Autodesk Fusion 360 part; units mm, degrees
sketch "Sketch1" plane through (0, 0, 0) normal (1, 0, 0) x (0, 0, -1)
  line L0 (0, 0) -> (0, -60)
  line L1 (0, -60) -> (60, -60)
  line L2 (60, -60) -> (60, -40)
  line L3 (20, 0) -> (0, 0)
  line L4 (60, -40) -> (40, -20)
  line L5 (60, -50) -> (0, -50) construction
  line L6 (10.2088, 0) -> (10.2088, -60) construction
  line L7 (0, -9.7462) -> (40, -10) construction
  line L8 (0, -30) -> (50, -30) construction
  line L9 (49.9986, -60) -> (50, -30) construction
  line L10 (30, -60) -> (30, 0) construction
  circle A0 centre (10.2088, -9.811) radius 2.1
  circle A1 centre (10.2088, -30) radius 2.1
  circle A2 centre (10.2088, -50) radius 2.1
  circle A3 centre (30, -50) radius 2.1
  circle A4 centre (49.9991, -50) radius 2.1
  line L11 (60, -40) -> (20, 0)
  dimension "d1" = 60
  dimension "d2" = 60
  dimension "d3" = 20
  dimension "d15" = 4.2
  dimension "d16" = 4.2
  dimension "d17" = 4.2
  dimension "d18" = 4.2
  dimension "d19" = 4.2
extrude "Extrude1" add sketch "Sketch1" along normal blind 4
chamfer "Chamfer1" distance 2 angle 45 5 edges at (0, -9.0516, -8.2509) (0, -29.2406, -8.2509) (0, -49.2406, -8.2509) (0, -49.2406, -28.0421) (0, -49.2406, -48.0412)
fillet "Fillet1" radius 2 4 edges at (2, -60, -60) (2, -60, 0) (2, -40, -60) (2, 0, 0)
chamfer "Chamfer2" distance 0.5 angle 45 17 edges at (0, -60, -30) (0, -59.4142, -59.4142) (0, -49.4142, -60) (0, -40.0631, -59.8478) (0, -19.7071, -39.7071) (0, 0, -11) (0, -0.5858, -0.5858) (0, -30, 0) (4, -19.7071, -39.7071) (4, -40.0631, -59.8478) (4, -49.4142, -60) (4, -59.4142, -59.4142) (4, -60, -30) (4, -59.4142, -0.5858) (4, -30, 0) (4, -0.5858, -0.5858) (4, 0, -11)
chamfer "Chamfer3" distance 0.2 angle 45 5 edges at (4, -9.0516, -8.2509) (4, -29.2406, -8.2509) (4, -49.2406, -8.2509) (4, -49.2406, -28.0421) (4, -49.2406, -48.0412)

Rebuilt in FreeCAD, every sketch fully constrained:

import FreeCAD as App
import Part
import Sketcher
from FreeCAD import Vector
Q = App.Units.Quantity


def edges_at(feature, points):
    """Names of the edges that pass closest to the given points."""
    edges = feature.Shape.Edges
    near = lambda p: min(range(len(edges)), key=lambda i: edges[i].distToShape(Part.Vertex(*p))[0])
    return sorted({f"Edge{near(p) + 1}" for p in points})

doc = App.newDocument("Part")
body = doc.addObject("PartDesign::Body", "Body")

sketch1 = doc.addObject("Sketcher::SketchObject", "Sketch")
body.addObject(sketch1)
sketch1.AttachmentSupport = (doc.YZ_Plane, [""])
sketch1.MapMode = "FlatFace"
sketch1.addGeometry(Part.LineSegment(Vector(0, -20, 0), Vector(0, 0, 0)), False)
sketch1.addGeometry(Part.LineSegment(Vector(0, 0, 0), Vector(-60, 0, 0)), False)
sketch1.addGeometry(Part.LineSegment(Vector(-60, 0, 0), Vector(-60, -60, 0)), False)
sketch1.addGeometry(Part.LineSegment(Vector(-60, -60, 0), Vector(-40, -60, 0)), False)
sketch1.addGeometry(Part.LineSegment(Vector(-40, -60, 0), Vector(0, -20, 0)), False)
sketch1.addGeometry(Part.Circle(Vector(-50, -10.2, 0), Vector(0, 0, 1), 2.1), False)
sketch1.addGeometry(Part.Circle(Vector(-30, -10.2, 0), Vector(0, 0, 1), 2.1), False)
sketch1.addGeometry(Part.Circle(Vector(-50, -30, 0), Vector(0, 0, 1), 2.1), False)
sketch1.addGeometry(Part.Circle(Vector(-50, -50, 0), Vector(0, 0, 1), 2.1), False)
sketch1.addGeometry(Part.Circle(Vector(-9.8, -10.2, 0), Vector(0, 0, 1), 2.1), False)
sketch1.addConstraint(Sketcher.Constraint("Coincident", 0, 2, 1, 1))
sketch1.addConstraint(Sketcher.Constraint("Coincident", 1, 2, 2, 1))
sketch1.addConstraint(Sketcher.Constraint("Coincident", 2, 2, 3, 1))
sketch1.addConstraint(Sketcher.Constraint("Coincident", 3, 2, 4, 1))
sketch1.addConstraint(Sketcher.Constraint("Coincident", 4, 2, 0, 1))
sketch1.addConstraint(Sketcher.Constraint("Vertical", 0))
sketch1.addConstraint(Sketcher.Constraint("Horizontal", 1))
sketch1.addConstraint(Sketcher.Constraint("Vertical", 2))
sketch1.addConstraint(Sketcher.Constraint("Horizontal", 3))
sketch1.addConstraint(Sketcher.Constraint("Coincident", 0, 2, -1, 1))
sketch1.addConstraint(Sketcher.Constraint("Equal", 5, 6))
sketch1.addConstraint(Sketcher.Constraint("Equal", 6, 7))
sketch1.addConstraint(Sketcher.Constraint("Equal", 7, 8))
sketch1.addConstraint(Sketcher.Constraint("Equal", 8, 9))
sketch1.addConstraint(Sketcher.Constraint("Horizontal", 5, 3, 6, 3))
sketch1.addConstraint(Sketcher.Constraint("Horizontal", 6, 3, 9, 3))
sketch1.addConstraint(Sketcher.Constraint("Vertical", 5, 3, 7, 3))
sketch1.addConstraint(Sketcher.Constraint("Vertical", 7, 3, 8, 3))
sketch1.addConstraint(Sketcher.Constraint("Equal", 3, 0))
sketch1.addConstraint(Sketcher.Constraint("Equal", 1, 2))
sketch1.addConstraint(Sketcher.Constraint("Diameter", 5, Q("4.2 mm")))
sketch1.addConstraint(Sketcher.Constraint("DistanceX", 1, 2, 1, 1, Q("60 mm")))
sketch1.addConstraint(Sketcher.Constraint("DistanceX", 3, 1, 3, 2, Q("20 mm")))
sketch1.addConstraint(Sketcher.Constraint("DistanceX", 5, 3, 6, 3, Q("20 mm")))
sketch1.addConstraint(Sketcher.Constraint("DistanceX", 5, 3, -1, 1, Q("50 mm")))
sketch1.addConstraint(Sketcher.Constraint("DistanceY", 7, 3, -1, 1, Q("30 mm")))
sketch1.addConstraint(Sketcher.Constraint("DistanceY", 8, 3, -1, 1, Q("49.999 mm")))
sketch1.addConstraint(Sketcher.Constraint("DistanceX", 9, 3, -1, 1, Q("9.811 mm")))
sketch1.addConstraint(Sketcher.Constraint("DistanceY", 5, 3, -1, 1, Q("10.2088 mm")))
pad1 = doc.addObject("PartDesign::Pad", "Pad")
body.addObject(pad1)
pad1.Profile = sketch1
pad1.Length = 4
doc.recompute()

chamfer = doc.addObject("PartDesign::Chamfer", "Chamfer")
body.addObject(chamfer)
chamfer.Base = (pad1, edges_at(pad1, [
    (0, -9.052, -8.251),
    (0, -29.241, -8.251),
    (0, -49.241, -8.251),
    (0, -49.241, -28.042),
    (0, -49.241, -48.041),
]))
chamfer.Size = 2
doc.recompute()

fillet = doc.addObject("PartDesign::Fillet", "Fillet")
body.addObject(fillet)
fillet.Base = (chamfer, edges_at(chamfer, [
    (2, -60, -60),
    (2, -60, 0),
    (2, -40, -60),
    (2, 0, 0),
]))
fillet.Radius = 2
doc.recompute()

chamfer2 = doc.addObject("PartDesign::Chamfer", "Chamfer001")
body.addObject(chamfer2)
chamfer2.Base = (fillet, edges_at(fillet, [
    (0, -60, -30),
    (0, -59.414, -59.414),
    (0, -49.414, -60),
    (0, -40.063, -59.848),
    (0, -19.707, -39.707),
    (0, 0, -11),
    (0, -0.586, -0.586),
    (0, -30, 0),
    (4, -19.707, -39.707),
    (4, -40.063, -59.848),
    (4, -49.414, -60),
    (4, -59.414, -59.414),
    (4, -60, -30),
    (4, -59.414, -0.586),
    (4, -30, 0),
    (4, -0.586, -0.586),
    (4, 0, -11),
]))
chamfer2.Size = 0.5
doc.recompute()

chamfer3 = doc.addObject("PartDesign::Chamfer", "Chamfer002")
body.addObject(chamfer3)
chamfer3.Base = (chamfer2, edges_at(chamfer2, [
    (4, -9.052, -8.251),
    (4, -29.241, -8.251),
    (4, -49.241, -8.251),
    (4, -49.241, -28.042),
    (4, -49.241, -48.041),
]))
chamfer3.Size = 0.2

doc.recompute()
